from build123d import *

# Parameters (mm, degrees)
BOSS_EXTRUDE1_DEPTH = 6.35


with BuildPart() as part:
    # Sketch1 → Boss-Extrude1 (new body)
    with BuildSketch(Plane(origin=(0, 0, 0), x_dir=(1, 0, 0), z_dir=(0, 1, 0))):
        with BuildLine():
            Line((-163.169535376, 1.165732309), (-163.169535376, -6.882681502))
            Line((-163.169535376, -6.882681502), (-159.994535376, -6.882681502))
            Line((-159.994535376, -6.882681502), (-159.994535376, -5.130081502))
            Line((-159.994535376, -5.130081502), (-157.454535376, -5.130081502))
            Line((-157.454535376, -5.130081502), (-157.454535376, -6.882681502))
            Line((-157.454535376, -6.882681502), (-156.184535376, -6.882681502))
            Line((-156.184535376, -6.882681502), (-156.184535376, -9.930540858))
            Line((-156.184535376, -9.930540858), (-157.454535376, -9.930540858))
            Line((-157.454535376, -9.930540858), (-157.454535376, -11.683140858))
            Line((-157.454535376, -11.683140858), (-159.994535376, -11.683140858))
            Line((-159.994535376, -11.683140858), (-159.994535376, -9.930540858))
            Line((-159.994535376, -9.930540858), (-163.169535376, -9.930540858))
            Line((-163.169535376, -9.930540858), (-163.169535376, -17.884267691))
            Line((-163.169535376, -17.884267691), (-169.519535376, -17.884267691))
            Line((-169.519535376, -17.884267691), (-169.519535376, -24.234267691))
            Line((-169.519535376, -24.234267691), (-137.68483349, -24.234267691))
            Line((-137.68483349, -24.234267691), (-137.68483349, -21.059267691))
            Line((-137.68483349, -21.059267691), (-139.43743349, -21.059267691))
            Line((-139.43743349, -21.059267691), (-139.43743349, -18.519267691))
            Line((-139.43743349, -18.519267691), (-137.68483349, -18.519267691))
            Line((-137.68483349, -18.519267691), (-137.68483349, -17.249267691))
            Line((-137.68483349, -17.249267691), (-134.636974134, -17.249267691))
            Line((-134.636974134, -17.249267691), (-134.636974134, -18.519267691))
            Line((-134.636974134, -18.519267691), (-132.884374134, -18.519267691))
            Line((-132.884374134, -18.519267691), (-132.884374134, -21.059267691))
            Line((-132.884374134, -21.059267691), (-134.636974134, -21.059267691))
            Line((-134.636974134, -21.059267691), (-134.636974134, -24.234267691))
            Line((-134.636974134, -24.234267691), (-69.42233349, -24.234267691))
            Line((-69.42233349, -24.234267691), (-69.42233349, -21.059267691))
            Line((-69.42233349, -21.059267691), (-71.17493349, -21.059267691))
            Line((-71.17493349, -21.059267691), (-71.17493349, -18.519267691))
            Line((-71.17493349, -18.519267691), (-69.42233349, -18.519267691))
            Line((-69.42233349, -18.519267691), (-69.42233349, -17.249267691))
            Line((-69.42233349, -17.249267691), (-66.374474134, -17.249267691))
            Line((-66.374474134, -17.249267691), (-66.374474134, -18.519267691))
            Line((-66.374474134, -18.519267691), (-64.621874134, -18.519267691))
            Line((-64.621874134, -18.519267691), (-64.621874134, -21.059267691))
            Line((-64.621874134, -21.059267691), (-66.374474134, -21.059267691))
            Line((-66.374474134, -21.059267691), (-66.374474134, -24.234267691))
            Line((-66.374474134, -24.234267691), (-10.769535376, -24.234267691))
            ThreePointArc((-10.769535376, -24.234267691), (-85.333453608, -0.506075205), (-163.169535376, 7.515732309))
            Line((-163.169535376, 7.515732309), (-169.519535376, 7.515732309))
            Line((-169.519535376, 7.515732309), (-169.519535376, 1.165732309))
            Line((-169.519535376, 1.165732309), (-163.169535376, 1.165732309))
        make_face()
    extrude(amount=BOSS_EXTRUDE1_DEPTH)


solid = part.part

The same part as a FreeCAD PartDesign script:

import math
import FreeCAD as App
import Part
import Sketcher
Q = App.Units.Quantity

doc = App.newDocument("Part")
body = doc.addObject("PartDesign::Body", "Body")

sketch1 = body.newObject("Sketcher::SketchObject", "Sketch")
sketch1.AttachmentSupport = (doc.getObject("XZ_Plane"), [""])
sketch1.MapMode = "FlatFace"
sketch1.addGeometry(Part.LineSegment(App.Vector(-163.169535, -1.165732, 0), App.Vector(-163.169535, 6.882682, 0)), False)
sketch1.addGeometry(Part.LineSegment(App.Vector(-163.169535, 6.882682, 0), App.Vector(-159.994535, 6.882682, 0)), False)
sketch1.addGeometry(Part.LineSegment(App.Vector(-159.994535, 6.882682, 0), App.Vector(-159.994535, 5.130082, 0)), False)
sketch1.addGeometry(Part.LineSegment(App.Vector(-159.994535, 5.130082, 0), App.Vector(-157.454535, 5.130082, 0)), False)
sketch1.addGeometry(Part.LineSegment(App.Vector(-157.454535, 5.130082, 0), App.Vector(-157.454535, 6.882682, 0)), False)
sketch1.addGeometry(Part.LineSegment(App.Vector(-157.454535, 6.882682, 0), App.Vector(-156.184535, 6.882682, 0)), False)
sketch1.addGeometry(Part.LineSegment(App.Vector(-156.184535, 6.882682, 0), App.Vector(-156.184535, 9.930541, 0)), False)
sketch1.addGeometry(Part.LineSegment(App.Vector(-156.184535, 9.930541, 0), App.Vector(-157.454535, 9.930541, 0)), False)
sketch1.addGeometry(Part.LineSegment(App.Vector(-157.454535, 9.930541, 0), App.Vector(-157.454535, 11.683141, 0)), False)
sketch1.addGeometry(Part.LineSegment(App.Vector(-157.454535, 11.683141, 0), App.Vector(-159.994535, 11.683141, 0)), False)
sketch1.addGeometry(Part.LineSegment(App.Vector(-159.994535, 11.683141, 0), App.Vector(-159.994535, 9.930541, 0)), False)
sketch1.addGeometry(Part.LineSegment(App.Vector(-159.994535, 9.930541, 0), App.Vector(-163.169535, 9.930541, 0)), False)
sketch1.addGeometry(Part.LineSegment(App.Vector(-163.169535, 9.930541, 0), App.Vector(-163.169535, 17.884268, 0)), False)
sketch1.addGeometry(Part.LineSegment(App.Vector(-163.169535, 17.884268, 0), App.Vector(-169.519535, 17.884268, 0)), False)
sketch1.addGeometry(Part.LineSegment(App.Vector(-169.519535, 17.884268, 0), App.Vector(-169.519535, 24.234268, 0)), False)
sketch1.addGeometry(Part.LineSegment(App.Vector(-169.519535, 24.234268, 0), App.Vector(-137.684833, 24.234268, 0)), False)
sketch1.addGeometry(Part.LineSegment(App.Vector(-137.684833, 24.234268, 0), App.Vector(-137.684833, 21.059268, 0)), False)
sketch1.addGeometry(Part.LineSegment(App.Vector(-137.684833, 21.059268, 0), App.Vector(-139.437433, 21.059268, 0)), False)
sketch1.addGeometry(Part.LineSegment(App.Vector(-139.437433, 21.059268, 0), App.Vector(-139.437433, 18.519268, 0)), False)
sketch1.addGeometry(Part.LineSegment(App.Vector(-139.437433, 18.519268, 0), App.Vector(-137.684833, 18.519268, 0)), False)
sketch1.addGeometry(Part.LineSegment(App.Vector(-137.684833, 18.519268, 0), App.Vector(-137.684833, 17.249268, 0)), False)
sketch1.addGeometry(Part.LineSegment(App.Vector(-137.684833, 17.249268, 0), App.Vector(-134.636974, 17.249268, 0)), False)
sketch1.addGeometry(Part.LineSegment(App.Vector(-134.636974, 17.249268, 0), App.Vector(-134.636974, 18.519268, 0)), False)
sketch1.addGeometry(Part.LineSegment(App.Vector(-134.636974, 18.519268, 0), App.Vector(-132.884374, 18.519268, 0)), False)
sketch1.addGeometry(Part.LineSegment(App.Vector(-132.884374, 18.519268, 0), App.Vector(-132.884374, 21.059268, 0)), False)
sketch1.addGeometry(Part.LineSegment(App.Vector(-132.884374, 21.059268, 0), App.Vector(-134.636974, 21.059268, 0)), False)
sketch1.addGeometry(Part.LineSegment(App.Vector(-134.636974, 21.059268, 0), App.Vector(-134.636974, 24.234268, 0)), False)
sketch1.addGeometry(Part.LineSegment(App.Vector(-134.636974, 24.234268, 0), App.Vector(-69.422333, 24.234268, 0)), False)
sketch1.addGeometry(Part.LineSegment(App.Vector(-69.422333, 24.234268, 0), App.Vector(-69.422333, 21.059268, 0)), False)
sketch1.addGeometry(Part.LineSegment(App.Vector(-69.422333, 21.059268, 0), App.Vector(-71.174933, 21.059268, 0)), False)
sketch1.addGeometry(Part.LineSegment(App.Vector(-71.174933, 21.059268, 0), App.Vector(-71.174933, 18.519268, 0)), False)
sketch1.addGeometry(Part.LineSegment(App.Vector(-71.174933, 18.519268, 0), App.Vector(-69.422333, 18.519268, 0)), False)
sketch1.addGeometry(Part.LineSegment(App.Vector(-69.422333, 18.519268, 0), App.Vector(-69.422333, 17.249268, 0)), False)
sketch1.addGeometry(Part.LineSegment(App.Vector(-69.422333, 17.249268, 0), App.Vector(-66.374474, 17.249268, 0)), False)
sketch1.addGeometry(Part.LineSegment(App.Vector(-66.374474, 17.249268, 0), App.Vector(-66.374474, 18.519268, 0)), False)
sketch1.addGeometry(Part.LineSegment(App.Vector(-66.374474, 18.519268, 0), App.Vector(-64.621874, 18.519268, 0)), False)
sketch1.addGeometry(Part.LineSegment(App.Vector(-64.621874, 18.519268, 0), App.Vector(-64.621874, 21.059268, 0)), False)
sketch1.addGeometry(Part.LineSegment(App.Vector(-64.621874, 21.059268, 0), App.Vector(-66.374474, 21.059268, 0)), False)
sketch1.addGeometry(Part.LineSegment(App.Vector(-66.374474, 21.059268, 0), App.Vector(-66.374474, 24.234268, 0)), False)
sketch1.addGeometry(Part.LineSegment(App.Vector(-66.374474, 24.234268, 0), App.Vector(-10.769535, 24.234268, 0)), False)
sketch1.addGeometry(Part.ArcOfCircle(Part.Circle(App.Vector(-163.169535, 374.119268, 0), App.Vector(0, 0, 1), 381.635), math.radians(-90), math.radians(-66.463422)), False)
sketch1.addGeometry(Part.LineSegment(App.Vector(-163.169535, -7.515732, 0), App.Vector(-169.519535, -7.515732, 0)), False)
sketch1.addGeometry(Part.LineSegment(App.Vector(-169.519535, -7.515732, 0), App.Vector(-169.519535, -1.165732, 0)), False)
sketch1.addGeometry(Part.LineSegment(App.Vector(-169.519535, -1.165732, 0), App.Vector(-163.169535, -1.165732, 0)), False)
sketch1.addConstraint(Sketcher.Constraint("Coincident", 0, 2, 1, 1))
sketch1.addConstraint(Sketcher.Constraint("Coincident", 1, 2, 2, 1))
sketch1.addConstraint(Sketcher.Constraint("Coincident", 2, 2, 3, 1))
sketch1.addConstraint(Sketcher.Constraint("Coincident", 3, 2, 4, 1))
sketch1.addConstraint(Sketcher.Constraint("Coincident", 4, 2, 5, 1))
sketch1.addConstraint(Sketcher.Constraint("Coincident", 5, 2, 6, 1))
sketch1.addConstraint(Sketcher.Constraint("Coincident", 6, 2, 7, 1))
sketch1.addConstraint(Sketcher.Constraint("Coincident", 7, 2, 8, 1))
sketch1.addConstraint(Sketcher.Constraint("Coincident", 8, 2, 9, 1))
sketch1.addConstraint(Sketcher.Constraint("Coincident", 9, 2, 10, 1))
sketch1.addConstraint(Sketcher.Constraint("Coincident", 10, 2, 11, 1))
sketch1.addConstraint(Sketcher.Constraint("Coincident", 11, 2, 12, 1))
sketch1.addConstraint(Sketcher.Constraint("Coincident", 12, 2, 13, 1))
sketch1.addConstraint(Sketcher.Constraint("Coincident", 13, 2, 14, 1))
sketch1.addConstraint(Sketcher.Constraint("Coincident", 14, 2, 15, 1))
sketch1.addConstraint(Sketcher.Constraint("Coincident", 15, 2, 16, 1))
sketch1.addConstraint(Sketcher.Constraint("Coincident", 16, 2, 17, 1))
sketch1.addConstraint(Sketcher.Constraint("Coincident", 17, 2, 18, 1))
sketch1.addConstraint(Sketcher.Constraint("Coincident", 18, 2, 19, 1))
sketch1.addConstraint(Sketcher.Constraint("Coincident", 19, 2, 20, 1))
sketch1.addConstraint(Sketcher.Constraint("Coincident", 20, 2, 21, 1))
sketch1.addConstraint(Sketcher.Constraint("Coincident", 21, 2, 22, 1))
sketch1.addConstraint(Sketcher.Constraint("Coincident", 22, 2, 23, 1))
sketch1.addConstraint(Sketcher.Constraint("Coincident", 23, 2, 24, 1))
sketch1.addConstraint(Sketcher.Constraint("Coincident", 24, 2, 25, 1))
sketch1.addConstraint(Sketcher.Constraint("Coincident", 25, 2, 26, 1))
sketch1.addConstraint(Sketcher.Constraint("Coincident", 26, 2, 27, 1))
sketch1.addConstraint(Sketcher.Constraint("Coincident", 27, 2, 28, 1))
sketch1.addConstraint(Sketcher.Constraint("Coincident", 28, 2, 29, 1))
sketch1.addConstraint(Sketcher.Constraint("Coincident", 29, 2, 30, 1))
sketch1.addConstraint(Sketcher.Constraint("Coincident", 30, 2, 31, 1))
sketch1.addConstraint(Sketcher.Constraint("Coincident", 31, 2, 32, 1))
sketch1.addConstraint(Sketcher.Constraint("Coincident", 32, 2, 33, 1))
sketch1.addConstraint(Sketcher.Constraint("Coincident", 33, 2, 34, 1))
sketch1.addConstraint(Sketcher.Constraint("Coincident", 34, 2, 35, 1))
sketch1.addConstraint(Sketcher.Constraint("Coincident", 35, 2, 36, 1))
sketch1.addConstraint(Sketcher.Constraint("Coincident", 36, 2, 37, 1))
sketch1.addConstraint(Sketcher.Constraint("Coincident", 37, 2, 38, 1))
sketch1.addConstraint(Sketcher.Constraint("Coincident", 38, 2, 39, 1))
sketch1.addConstraint(Sketcher.Constraint("Coincident", 39, 2, 40, 2))
sketch1.addConstraint(Sketcher.Constraint("Tangent", 40, 1, 41, 1))
sketch1.addConstraint(Sketcher.Constraint("Coincident", 41, 2, 42, 1))
sketch1.addConstraint(Sketcher.Constraint("Coincident", 42, 2, 43, 1))
sketch1.addConstraint(Sketcher.Constraint("Coincident", 43, 2, 0, 1))
sketch1.addConstraint(Sketcher.Constraint("Vertical", 0))
sketch1.addConstraint(Sketcher.Constraint("Horizontal", 1))
sketch1.addConstraint(Sketcher.Constraint("Vertical", 2))
sketch1.addConstraint(Sketcher.Constraint("Horizontal", 3))
sketch1.addConstraint(Sketcher.Constraint("Vertical", 4))
sketch1.addConstraint(Sketcher.Constraint("Horizontal", 5))
sketch1.addConstraint(Sketcher.Constraint("Vertical", 6))
sketch1.addConstraint(Sketcher.Constraint("Horizontal", 7))
sketch1.addConstraint(Sketcher.Constraint("Vertical", 8))
sketch1.addConstraint(Sketcher.Constraint("Horizontal", 9))
sketch1.addConstraint(Sketcher.Constraint("Vertical", 10))
sketch1.addConstraint(Sketcher.Constraint("Horizontal", 11))
sketch1.addConstraint(Sketcher.Constraint("Vertical", 12))
sketch1.addConstraint(Sketcher.Constraint("Horizontal", 13))
sketch1.addConstraint(Sketcher.Constraint("Vertical", 14))
sketch1.addConstraint(Sketcher.Constraint("Horizontal", 15))
sketch1.addConstraint(Sketcher.Constraint("Vertical", 16))
sketch1.addConstraint(Sketcher.Constraint("Horizontal", 17))
sketch1.addConstraint(Sketcher.Constraint("Vertical", 18))
sketch1.addConstraint(Sketcher.Constraint("Horizontal", 19))
sketch1.addConstraint(Sketcher.Constraint("Vertical", 20))
sketch1.addConstraint(Sketcher.Constraint("Horizontal", 21))
sketch1.addConstraint(Sketcher.Constraint("Vertical", 22))
sketch1.addConstraint(Sketcher.Constraint("Horizontal", 23))
sketch1.addConstraint(Sketcher.Constraint("Vertical", 24))
sketch1.addConstraint(Sketcher.Constraint("Horizontal", 25))
sketch1.addConstraint(Sketcher.Constraint("Vertical", 26))
sketch1.addConstraint(Sketcher.Constraint("Horizontal", 27))
sketch1.addConstraint(Sketcher.Constraint("Vertical", 28))
sketch1.addConstraint(Sketcher.Constraint("Horizontal", 29))
sketch1.addConstraint(Sketcher.Constraint("Vertical", 30))
sketch1.addConstraint(Sketcher.Constraint("Horizontal", 31))
sketch1.addConstraint(Sketcher.Constraint("Vertical", 32))
sketch1.addConstraint(Sketcher.Constraint("Horizontal", 33))
sketch1.addConstraint(Sketcher.Constraint("Vertical", 34))
sketch1.addConstraint(Sketcher.Constraint("Horizontal", 35))
sketch1.addConstraint(Sketcher.Constraint("Vertical", 36))
sketch1.addConstraint(Sketcher.Constraint("Horizontal", 37))
sketch1.addConstraint(Sketcher.Constraint("Vertical", 38))
sketch1.addConstraint(Sketcher.Constraint("Horizontal", 39))
sketch1.addConstraint(Sketcher.Constraint("Horizontal", 41))
sketch1.addConstraint(Sketcher.Constraint("Vertical", 42))
sketch1.addConstraint(Sketcher.Constraint("Horizontal", 43))
sketch1.addConstraint(Sketcher.Constraint("Horizontal", 1, 2, 4, 2))
sketch1.addConstraint(Sketcher.Constraint("Horizontal", 7, 2, 10, 2))
sketch1.addConstraint(Sketcher.Constraint("Horizontal", 19, 2, 22, 2))
sketch1.addConstraint(Sketcher.Constraint("Horizontal", 17, 2, 24, 2))
sketch1.addConstraint(Sketcher.Constraint("Horizontal", 15, 2, 26, 2))
sketch1.addConstraint(Sketcher.Constraint("Horizontal", 25, 2, 28, 2))
sketch1.addConstraint(Sketcher.Constraint("Horizontal", 23, 2, 30, 2))
sketch1.addConstraint(Sketcher.Constraint("Horizontal", 21, 2, 32, 2))
sketch1.addConstraint(Sketcher.Constraint("Horizontal", 31, 2, 34, 2))
sketch1.addConstraint(Sketcher.Constraint("Horizontal", 29, 2, 36, 2))
sketch1.addConstraint(Sketcher.Constraint("Horizontal", 27, 2, 38, 2))
sketch1.addConstraint(Sketcher.Constraint("Vertical", 40, 3, 0, 2))
sketch1.addConstraint(Sketcher.Constraint("Vertical", 4, 2, 7, 2))
sketch1.addConstraint(Sketcher.Constraint("Vertical", 2, 2, 9, 2))
sketch1.addConstraint(Sketcher.Constraint("Vertical", 0, 2, 11, 2))
sketch1.addConstraint(Sketcher.Constraint("Vertical", 16, 2, 19, 2))
sketch1.addConstraint(Sketcher.Constraint("Vertical", 22, 2, 25, 2))
sketch1.addConstraint(Sketcher.Constraint("Vertical", 28, 2, 31, 2))
sketch1.addConstraint(Sketcher.Constraint("Vertical", 34, 2, 37, 2))
sketch1.addConstraint(Sketcher.Constraint("Vertical", 14, 2, 41, 2))
sketch1.addConstraint(Sketcher.Constraint("Equal", 19, 23))
sketch1.addConstraint(Sketcher.Constraint("Equal", 25, 29))
sketch1.addConstraint(Sketcher.Constraint("Equal", 21, 33))
sketch1.addConstraint(Sketcher.Constraint("Equal", 31, 35))
sketch1.addConstraint(Sketcher.Constraint("Equal", 37, 2))
sketch1.addConstraint(Sketcher.Constraint("Equal", 33, 6))
sketch1.addConstraint(Sketcher.Constraint("Equal", 4, 8))
sketch1.addConstraint(Sketcher.Constraint("Equal", 43, 14))
sketch1.addConstraint(Sketcher.Constraint("Equal", 11, 16))
sketch1.addConstraint(Sketcher.Constraint("Equal", 9, 18))
sketch1.addConstraint(Sketcher.Constraint("Equal", 7, 20))
sketch1.addConstraint(Sketcher.Constraint("Equal", 14, 42))
sketch1.addConstraint(Sketcher.Constraint("DistanceX", 3, 1, 3, 2, Q("0.1 in")))
sketch1.addConstraint(Sketcher.Constraint("Radius", 40, Q("15.025 in")))
sketch1.addConstraint(Sketcher.Constraint("DistanceX", 5, 1, 5, 2, Q("0.05 in")))
sketch1.addConstraint(Sketcher.Constraint("DistanceX", 13, 2, 13, 1, Q("0.25 in")))
sketch1.addConstraint(Sketcher.Constraint("DistanceX", 1, 1, 1, 2, Q("0.125 in")))
sketch1.addConstraint(Sketcher.Constraint("DistanceX", 17, 2, 17, 1, Q("0.069 in")))
sketch1.addConstraint(Sketcher.Constraint("DistanceX", 15, 1, 15, 2, 31.834702))
sketch1.addConstraint(Sketcher.Constraint("DistanceX", 21, 1, 21, 2, 3.047859))
sketch1.addConstraint(Sketcher.Constraint("DistanceX", 27, 1, 27, 2, 65.214641))
sketch1.addConstraint(Sketcher.Constraint("DistanceX", 39, 1, 39, 2, 55.604939))
sketch1.addConstraint(Sketcher.Constraint("DistanceY", 0, 1, 0, 2, 8.048414))
sketch1.addConstraint(Sketcher.Constraint("DistanceY", -1, 1, 0, 2, 6.882682))
sketch1.addConstraint(Sketcher.Constraint("DistanceX", 40, 3, -1, 1, 163.169535))
pad1 = body.newObject("PartDesign::Pad", "Pad")
pad1.Profile = sketch1
pad1.Length = Q("0.25 in")
pad1.Reversed = True

doc.recompute()
